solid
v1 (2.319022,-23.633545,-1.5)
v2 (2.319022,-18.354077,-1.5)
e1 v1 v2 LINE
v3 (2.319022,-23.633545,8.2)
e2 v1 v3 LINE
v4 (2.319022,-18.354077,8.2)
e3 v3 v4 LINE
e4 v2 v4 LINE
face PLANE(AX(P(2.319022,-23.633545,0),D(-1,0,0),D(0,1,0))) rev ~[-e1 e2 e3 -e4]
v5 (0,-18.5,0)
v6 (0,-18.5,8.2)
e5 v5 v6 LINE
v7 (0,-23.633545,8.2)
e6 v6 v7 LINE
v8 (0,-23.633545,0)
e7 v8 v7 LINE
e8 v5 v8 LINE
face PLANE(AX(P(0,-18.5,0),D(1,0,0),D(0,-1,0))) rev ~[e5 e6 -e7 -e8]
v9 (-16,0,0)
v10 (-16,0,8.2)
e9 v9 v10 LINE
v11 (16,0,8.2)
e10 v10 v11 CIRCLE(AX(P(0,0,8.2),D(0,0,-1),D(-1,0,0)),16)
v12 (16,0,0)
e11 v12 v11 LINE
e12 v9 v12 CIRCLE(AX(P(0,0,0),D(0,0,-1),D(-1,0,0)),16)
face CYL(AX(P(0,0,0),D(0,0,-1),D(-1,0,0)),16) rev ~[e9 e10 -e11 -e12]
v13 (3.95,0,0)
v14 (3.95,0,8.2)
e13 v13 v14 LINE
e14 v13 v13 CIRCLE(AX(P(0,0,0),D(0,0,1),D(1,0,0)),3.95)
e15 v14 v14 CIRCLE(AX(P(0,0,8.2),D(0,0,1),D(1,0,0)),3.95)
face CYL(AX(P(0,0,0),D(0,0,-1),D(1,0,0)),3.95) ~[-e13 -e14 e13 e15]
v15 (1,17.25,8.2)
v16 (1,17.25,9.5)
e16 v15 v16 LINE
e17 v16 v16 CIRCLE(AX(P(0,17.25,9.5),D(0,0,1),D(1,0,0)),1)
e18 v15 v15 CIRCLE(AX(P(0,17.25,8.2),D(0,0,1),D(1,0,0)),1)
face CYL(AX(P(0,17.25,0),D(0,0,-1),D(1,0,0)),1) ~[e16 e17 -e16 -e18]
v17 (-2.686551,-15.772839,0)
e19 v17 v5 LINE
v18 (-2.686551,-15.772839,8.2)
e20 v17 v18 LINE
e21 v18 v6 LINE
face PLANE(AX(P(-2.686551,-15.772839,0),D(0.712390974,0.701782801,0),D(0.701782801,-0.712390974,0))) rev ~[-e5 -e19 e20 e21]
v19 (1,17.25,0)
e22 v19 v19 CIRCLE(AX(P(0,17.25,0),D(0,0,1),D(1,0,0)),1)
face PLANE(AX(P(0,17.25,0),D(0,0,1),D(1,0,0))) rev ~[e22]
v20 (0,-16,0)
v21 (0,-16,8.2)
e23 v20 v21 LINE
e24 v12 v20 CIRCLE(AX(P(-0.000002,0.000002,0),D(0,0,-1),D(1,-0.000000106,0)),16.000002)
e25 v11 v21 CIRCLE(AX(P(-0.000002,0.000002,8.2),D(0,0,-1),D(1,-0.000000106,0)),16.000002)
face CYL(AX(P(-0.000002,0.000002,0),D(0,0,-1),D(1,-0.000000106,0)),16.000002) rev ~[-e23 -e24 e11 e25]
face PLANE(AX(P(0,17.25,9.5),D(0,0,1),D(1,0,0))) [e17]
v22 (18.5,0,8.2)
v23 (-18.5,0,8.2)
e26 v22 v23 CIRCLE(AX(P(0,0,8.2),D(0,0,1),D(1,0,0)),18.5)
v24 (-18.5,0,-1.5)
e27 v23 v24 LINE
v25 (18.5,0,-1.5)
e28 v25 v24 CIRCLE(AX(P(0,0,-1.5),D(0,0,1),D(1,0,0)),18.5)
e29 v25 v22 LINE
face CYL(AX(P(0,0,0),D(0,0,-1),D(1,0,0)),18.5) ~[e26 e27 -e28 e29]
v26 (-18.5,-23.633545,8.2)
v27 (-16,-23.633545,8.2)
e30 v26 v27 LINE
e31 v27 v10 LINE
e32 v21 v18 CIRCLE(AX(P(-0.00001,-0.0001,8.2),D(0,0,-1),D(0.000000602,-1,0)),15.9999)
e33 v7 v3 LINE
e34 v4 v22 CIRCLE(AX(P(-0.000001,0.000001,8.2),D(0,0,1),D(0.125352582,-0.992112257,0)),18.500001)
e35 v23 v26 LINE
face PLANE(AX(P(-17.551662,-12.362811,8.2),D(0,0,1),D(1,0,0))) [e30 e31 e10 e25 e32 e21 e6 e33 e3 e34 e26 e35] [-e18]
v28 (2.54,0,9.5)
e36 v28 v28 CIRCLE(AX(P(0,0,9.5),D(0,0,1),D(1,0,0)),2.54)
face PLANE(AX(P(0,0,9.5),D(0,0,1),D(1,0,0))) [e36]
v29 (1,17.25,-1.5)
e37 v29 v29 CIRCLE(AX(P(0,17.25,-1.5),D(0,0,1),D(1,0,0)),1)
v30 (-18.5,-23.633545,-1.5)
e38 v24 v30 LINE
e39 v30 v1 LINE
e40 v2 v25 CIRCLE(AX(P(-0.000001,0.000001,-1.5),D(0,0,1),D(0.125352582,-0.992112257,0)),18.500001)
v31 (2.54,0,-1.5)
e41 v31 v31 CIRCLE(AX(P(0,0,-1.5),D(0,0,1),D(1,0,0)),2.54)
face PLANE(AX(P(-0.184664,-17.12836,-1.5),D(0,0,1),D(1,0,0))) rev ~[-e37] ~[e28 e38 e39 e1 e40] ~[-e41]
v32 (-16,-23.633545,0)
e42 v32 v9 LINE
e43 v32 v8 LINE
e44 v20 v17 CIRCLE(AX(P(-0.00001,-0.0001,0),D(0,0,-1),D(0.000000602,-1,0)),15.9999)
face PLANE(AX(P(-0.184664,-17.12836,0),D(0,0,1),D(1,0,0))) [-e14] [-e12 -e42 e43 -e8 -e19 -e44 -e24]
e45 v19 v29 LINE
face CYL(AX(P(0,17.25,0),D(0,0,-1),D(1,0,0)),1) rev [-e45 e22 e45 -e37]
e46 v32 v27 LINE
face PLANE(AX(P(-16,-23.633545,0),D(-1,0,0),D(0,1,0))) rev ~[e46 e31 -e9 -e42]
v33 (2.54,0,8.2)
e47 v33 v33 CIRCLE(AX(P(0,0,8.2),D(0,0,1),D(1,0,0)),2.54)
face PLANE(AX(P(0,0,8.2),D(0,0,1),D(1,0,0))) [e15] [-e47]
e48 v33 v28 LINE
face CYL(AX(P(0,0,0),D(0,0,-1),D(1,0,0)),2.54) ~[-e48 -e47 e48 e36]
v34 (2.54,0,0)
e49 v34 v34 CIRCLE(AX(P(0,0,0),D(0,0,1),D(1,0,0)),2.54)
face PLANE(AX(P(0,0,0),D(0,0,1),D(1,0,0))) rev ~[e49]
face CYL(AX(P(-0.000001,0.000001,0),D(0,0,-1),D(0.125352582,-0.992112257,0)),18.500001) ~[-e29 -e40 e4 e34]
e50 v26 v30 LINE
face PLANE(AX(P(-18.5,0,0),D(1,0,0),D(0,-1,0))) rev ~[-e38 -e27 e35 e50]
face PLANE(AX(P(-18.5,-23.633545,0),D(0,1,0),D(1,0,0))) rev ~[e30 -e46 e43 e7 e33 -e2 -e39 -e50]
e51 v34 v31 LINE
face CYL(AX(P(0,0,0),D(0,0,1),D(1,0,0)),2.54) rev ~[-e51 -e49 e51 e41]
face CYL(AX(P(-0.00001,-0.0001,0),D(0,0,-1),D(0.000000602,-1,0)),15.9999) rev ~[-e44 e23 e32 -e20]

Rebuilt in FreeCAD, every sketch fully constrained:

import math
import FreeCAD as App
import Part
import Sketcher

V = App.Vector

doc = App.newDocument("Part")
body = doc.addObject("PartDesign::Body", "Body")

sketch1 = body.newObject("Sketcher::SketchObject", "Sketch")
sketch1.AttachmentSupport = (doc.getObject("XY_Plane"), [""])
sketch1.MapMode = "FlatFace"
sketch1.addGeometry(Part.ArcOfCircle(Part.Circle(V(-0.000001, 0.000001, 0), V(0, 0, 1), 18.500001), math.radians(-82.798883), math.radians(-0.000002)), False)
sketch1.addGeometry(Part.ArcOfCircle(Part.Circle(V(0, 0, 0), V(0, 0, 1), 18.5), math.radians(0), math.radians(180)), False)
sketch1.addGeometry(Part.LineSegment(V(-18.5, 0, 0), V(-18.5, -23.633545, 0)), False)
sketch1.addGeometry(Part.LineSegment(V(-18.5, -23.633545, 0), V(2.319022, -23.633545, 0)), False)
sketch1.addGeometry(Part.LineSegment(V(2.319022, -23.633545, 0), V(2.319022, -18.354077, 0)), False)
sketch1.addGeometry(Part.Circle(V(0, 0, 0), V(0, 0, 1), 2.54), False)
sketch1.addGeometry(Part.Circle(V(0, 17.25, 0), V(0, 0, 1), 1), False)
sketch1.addConstraint(Sketcher.Constraint("Tangent", 0, 2, 1, 1))
sketch1.addConstraint(Sketcher.Constraint("Tangent", 1, 2, 2, 1))
sketch1.addConstraint(Sketcher.Constraint("Coincident", 2, 2, 3, 1))
sketch1.addConstraint(Sketcher.Constraint("Coincident", 3, 2, 4, 1))
sketch1.addConstraint(Sketcher.Constraint("Coincident", 4, 2, 0, 1))
sketch1.addConstraint(Sketcher.Constraint("Vertical", 2))
sketch1.addConstraint(Sketcher.Constraint("Horizontal", 3))
sketch1.addConstraint(Sketcher.Constraint("Vertical", 4))
sketch1.addConstraint(Sketcher.Constraint("Coincident", 0, 3, -1, 1))
sketch1.addConstraint(Sketcher.Constraint("Coincident", 5, 3, -1, 1))
sketch1.addConstraint(Sketcher.Constraint("Equal", 0, 1))
sketch1.addConstraint(Sketcher.Constraint("PointOnObject", 6, 3, -2))
sketch1.addConstraint(Sketcher.Constraint("PointOnObject", 0, 2, -1))
sketch1.addConstraint(Sketcher.Constraint("Diameter", 6, 2.0))
sketch1.addConstraint(Sketcher.Constraint("Radius", 0, 18.500001))
sketch1.addConstraint(Sketcher.Constraint("Diameter", 5, 5.08))
sketch1.addConstraint(Sketcher.Constraint("DistanceY", -1, 1, 6, 3, 17.25))
sketch1.addConstraint(Sketcher.Constraint("DistanceY", 4, 1, 4, 2, 5.279468))
sketch1.addConstraint(Sketcher.Constraint("DistanceX", 3, 1, 3, 2, 20.819022))
pad1 = body.newObject("PartDesign::Pad", "Pad")
pad1.Profile = sketch1
pad1.Length = 1.5
pad1.Reversed = True

sketch2 = body.newObject("Sketcher::SketchObject", "Sketch001")
sketch2.AttachmentSupport = (doc.getObject("XY_Plane"), [""])
sketch2.MapMode = "FlatFace"
sketch2.addGeometry(Part.LineSegment(V(-16, -23.633545, 0), V(-16, 0, 0)), False)
sketch2.addGeometry(Part.ArcOfCircle(Part.Circle(V(0, 0, 0), V(0, 0, 1), 16), math.radians(0), math.radians(180)), False)
sketch2.addGeometry(Part.ArcOfCircle(Part.Circle(V(-0.000002, 0.000002, 0), V(0, 0, 1), 16.000002), math.radians(-89.999994), math.radians(-0.000006)), False)
sketch2.addGeometry(Part.ArcOfCircle(Part.Circle(V(-0.00001, -0.0001, 0), V(0, 0, 1), 15.9999), math.radians(-99.666317), math.radians(-89.999965)), False)
sketch2.addGeometry(Part.LineSegment(V(-2.686551, -15.772839, 0), V(0, -18.5, 0)), False)
sketch2.addGeometry(Part.LineSegment(V(0, -18.5, 0), V(0, -23.633545, 0)), False)
sketch2.addGeometry(Part.LineSegment(V(0, -23.633545, 0), V(2.319022, -23.633545, 0)), False)
sketch2.addGeometry(Part.LineSegment(V(2.319022, -23.633545, 0), V(2.319022, -18.354077, 0)), False)
sketch2.addGeometry(Part.ArcOfCircle(Part.Circle(V(-0.000001, 0.000001, 0), V(0, 0, 1), 18.500001), math.radians(-82.798883), math.radians(-0.000002)), False)
sketch2.addGeometry(Part.ArcOfCircle(Part.Circle(V(0, 0, 0), V(0, 0, 1), 18.5), math.radians(0), math.radians(180)), False)
sketch2.addGeometry(Part.LineSegment(V(-18.5, 0, 0), V(-18.5, -23.633545, 0)), False)
sketch2.addGeometry(Part.LineSegment(V(-18.5, -23.633545, 0), V(-16, -23.633545, 0)), False)
sketch2.addGeometry(Part.Circle(V(0, 17.25, 0), V(0, 0, 1), 1), False)
sketch2.addGeometry(Part.Circle(V(0, 0, 0), V(0, 0, 1), 3.95), False)
sketch2.addGeometry(Part.Circle(V(0, 0, 0), V(0, 0, 1), 2.54), False)
sketch2.addConstraint(Sketcher.Constraint("Tangent", 0, 2, 1, 2))
sketch2.addConstraint(Sketcher.Constraint("Tangent", 1, 1, 2, 2))
sketch2.addConstraint(Sketcher.Constraint("Tangent", 2, 1, 3, 2))
sketch2.addConstraint(Sketcher.Constraint("Coincident", 3, 1, 4, 1))
sketch2.addConstraint(Sketcher.Constraint("Coincident", 4, 2, 5, 1))
sketch2.addConstraint(Sketcher.Constraint("Coincident", 5, 2, 6, 1))
sketch2.addConstraint(Sketcher.Constraint("Coincident", 6, 2, 7, 1))
sketch2.addConstraint(Sketcher.Constraint("Coincident", 7, 2, 8, 1))
sketch2.addConstraint(Sketcher.Constraint("Tangent", 8, 2, 9, 1))
sketch2.addConstraint(Sketcher.Constraint("Tangent", 9, 2, 10, 1))
sketch2.addConstraint(Sketcher.Constraint("Coincident", 10, 2, 11, 1))
sketch2.addConstraint(Sketcher.Constraint("Coincident", 11, 2, 0, 1))
sketch2.addConstraint(Sketcher.Constraint("Vertical", 0))
sketch2.addConstraint(Sketcher.Constraint("Vertical", 5))
sketch2.addConstraint(Sketcher.Constraint("Horizontal", 6))
sketch2.addConstraint(Sketcher.Constraint("Vertical", 7))
sketch2.addConstraint(Sketcher.Constraint("Vertical", 10))
sketch2.addConstraint(Sketcher.Constraint("Horizontal", 11))
sketch2.addConstraint(Sketcher.Constraint("Coincident", 1, 3, -1, 1))
sketch2.addConstraint(Sketcher.Constraint("Coincident", 8, 3, -1, 1))
sketch2.addConstraint(Sketcher.Constraint("Coincident", 13, 3, -1, 1))
sketch2.addConstraint(Sketcher.Constraint("Coincident", 14, 3, -1, 1))
sketch2.addConstraint(Sketcher.Constraint("Equal", 1, 2))
sketch2.addConstraint(Sketcher.Constraint("Equal", 8, 9))
sketch2.addConstraint(Sketcher.Constraint("PointOnObject", 12, 3, -2))
sketch2.addConstraint(Sketcher.Constraint("PointOnObject", 1, 1, -1))
sketch2.addConstraint(Sketcher.Constraint("PointOnObject", 2, 1, -2))
sketch2.addConstraint(Sketcher.Constraint("PointOnObject", 4, 2, -2))
sketch2.addConstraint(Sketcher.Constraint("PointOnObject", 8, 2, -1))
sketch2.addConstraint(Sketcher.Constraint("Horizontal", 6, 2, 10, 2))
sketch2.addConstraint(Sketcher.Constraint("Diameter", 12, 2.0))
sketch2.addConstraint(Sketcher.Constraint("Radius", 1, 16.0))
sketch2.addConstraint(Sketcher.Constraint("Diameter", 13, 7.9))
sketch2.addConstraint(Sketcher.Constraint("Radius", 8, 18.500001))
sketch2.addConstraint(Sketcher.Constraint("Diameter", 14, 5.08))
sketch2.addConstraint(Sketcher.Constraint("DistanceY", 4, 2, -1, 1, 18.5))
sketch2.addConstraint(Sketcher.Constraint("Radius", 3, 15.9999))
sketch2.addConstraint(Sketcher.Constraint("DistanceY", -1, 1, 12, 3, 17.25))
sketch2.addConstraint(Sketcher.Constraint("DistanceX", 6, 1, 6, 2, 2.319022))
sketch2.addConstraint(Sketcher.Constraint("DistanceY", 7, 1, 7, 2, 5.279468))
sketch2.addConstraint(Sketcher.Constraint("Distance", 4, 3.82818))
pad2 = body.newObject("PartDesign::Pad", "Pad001")
pad2.Profile = sketch2
pad2.Length = 8.2

sketch3 = body.newObject("Sketcher::SketchObject", "Sketch002")
sketch3.AttachmentSupport = (doc.getObject("XY_Plane"), [""])
sketch3.MapMode = "FlatFace"
sketch3.addGeometry(Part.Circle(V(0, 17.25, 0), V(0, 0, 1), 1), False)
sketch3.addGeometry(Part.Circle(V(0, 0, 0), V(0, 0, 1), 2.54), False)
sketch3.addConstraint(Sketcher.Constraint("Coincident", 1, 3, -1, 1))
sketch3.addConstraint(Sketcher.Constraint("PointOnObject", 0, 3, -2))
sketch3.addConstraint(Sketcher.Constraint("Diameter", 0, 2.0))
sketch3.addConstraint(Sketcher.Constraint("Diameter", 1, 5.08))
sketch3.addConstraint(Sketcher.Constraint("DistanceY", -1, 1, 0, 3, 17.25))
pad3 = body.newObject("PartDesign::Pad", "Pad002")
pad3.Profile = sketch3
pad3.Length = 9.5

doc.recompute()
